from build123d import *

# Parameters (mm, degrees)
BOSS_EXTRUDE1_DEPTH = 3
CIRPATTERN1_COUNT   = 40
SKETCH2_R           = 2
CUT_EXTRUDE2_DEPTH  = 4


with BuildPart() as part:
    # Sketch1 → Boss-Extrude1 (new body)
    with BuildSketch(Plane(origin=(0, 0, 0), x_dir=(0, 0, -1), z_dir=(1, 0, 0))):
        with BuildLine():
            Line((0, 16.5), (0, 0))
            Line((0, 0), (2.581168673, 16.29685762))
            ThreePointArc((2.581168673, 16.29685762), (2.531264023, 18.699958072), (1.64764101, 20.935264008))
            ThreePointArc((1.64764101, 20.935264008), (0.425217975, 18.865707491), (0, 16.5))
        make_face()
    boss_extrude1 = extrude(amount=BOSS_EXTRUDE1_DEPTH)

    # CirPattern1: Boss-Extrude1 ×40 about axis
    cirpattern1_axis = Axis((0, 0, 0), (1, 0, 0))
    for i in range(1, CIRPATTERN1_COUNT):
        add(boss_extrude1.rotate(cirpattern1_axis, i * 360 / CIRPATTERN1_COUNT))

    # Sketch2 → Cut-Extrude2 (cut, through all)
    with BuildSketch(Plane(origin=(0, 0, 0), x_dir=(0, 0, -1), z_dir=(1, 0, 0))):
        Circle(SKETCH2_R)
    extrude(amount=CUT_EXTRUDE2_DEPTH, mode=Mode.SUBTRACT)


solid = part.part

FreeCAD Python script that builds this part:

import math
import FreeCAD as App
import Part
import Sketcher

V = App.Vector
Q = App.Units.Quantity

doc = App.newDocument("Part")
body = doc.addObject("PartDesign::Body", "Body")

sketch1 = body.newObject("Sketcher::SketchObject", "Sketch")
sketch1.AttachmentSupport = (doc.getObject("YZ_Plane"), [""])
sketch1.MapMode = "FlatFace"
sketch1.addGeometry([
    Part.LineSegment(V(16.5, 0, 0), V(0, 0, 0)),
    Part.LineSegment(V(0, 0, 0), V(16.296858, -2.581169, 0)),
    Part.ArcOfCircle(Part.Circle(V(17.359585, 4.128629, 0), V(0, 0, 1), 6.793436), math.radians(-99), math.radians(-58.241289)),
    Part.ArcOfCircle(Part.Circle(V(16.5, -6.793436, 0), V(0, 0, 1), 6.793436), math.radians(49.241289), math.radians(90)),
], False)
sketch1.addConstraint([
    Sketcher.Constraint("Coincident", 0, 2, 1, 1),
    Sketcher.Constraint("Tangent", 1, 2, 2, 1),
    Sketcher.Constraint("Coincident", 2, 2, 3, 1),
    Sketcher.Constraint("Tangent", 3, 2, 0, 1),
    Sketcher.Constraint("Horizontal", 0),
    Sketcher.Constraint("Coincident", 0, 2, -1, 1),
    Sketcher.Constraint("Equal", 2, 3),
    Sketcher.Constraint("Angle", 1, Q("-9 deg")),
    Sketcher.Constraint("DistanceX", 0, 2, 0, 1, Q("16.5 mm")),
    Sketcher.Constraint("Distance", 1, Q("16.5 mm")),
    Sketcher.Constraint("Radius", 2, Q("6.793436 mm")),
])
pad1 = body.newObject("PartDesign::Pad", "Pad")
pad1.Profile = sketch1
pad1.Length = 3
doc.recompute()

polarpattern = body.newObject("PartDesign::PolarPattern", "PolarPattern")
polarpattern.Originals = [pad1]
polarpattern.Axis = (doc.getObject("X_Axis"), [""])
polarpattern.Angle = 360
polarpattern.Occurrences = 40
body.Tip = polarpattern

sketch2 = body.newObject("Sketcher::SketchObject", "Sketch001")
sketch2.AttachmentSupport = (doc.getObject("YZ_Plane"), [""])
sketch2.MapMode = "FlatFace"
sketch2.addGeometry(Part.Circle(V(0, 0, 0), V(0, 0, 1), 2), False)
sketch2.addConstraint([
    Sketcher.Constraint("Coincident", 0, 3, -1, 1),
    Sketcher.Constraint("Diameter", 0, Q("4 mm")),
])
pocket1 = body.newObject("PartDesign::Pocket", "Pocket")
pocket1.Profile = sketch2
pocket1.Type = "ThroughAll"
pocket1.Reversed = True

doc.recompute()
